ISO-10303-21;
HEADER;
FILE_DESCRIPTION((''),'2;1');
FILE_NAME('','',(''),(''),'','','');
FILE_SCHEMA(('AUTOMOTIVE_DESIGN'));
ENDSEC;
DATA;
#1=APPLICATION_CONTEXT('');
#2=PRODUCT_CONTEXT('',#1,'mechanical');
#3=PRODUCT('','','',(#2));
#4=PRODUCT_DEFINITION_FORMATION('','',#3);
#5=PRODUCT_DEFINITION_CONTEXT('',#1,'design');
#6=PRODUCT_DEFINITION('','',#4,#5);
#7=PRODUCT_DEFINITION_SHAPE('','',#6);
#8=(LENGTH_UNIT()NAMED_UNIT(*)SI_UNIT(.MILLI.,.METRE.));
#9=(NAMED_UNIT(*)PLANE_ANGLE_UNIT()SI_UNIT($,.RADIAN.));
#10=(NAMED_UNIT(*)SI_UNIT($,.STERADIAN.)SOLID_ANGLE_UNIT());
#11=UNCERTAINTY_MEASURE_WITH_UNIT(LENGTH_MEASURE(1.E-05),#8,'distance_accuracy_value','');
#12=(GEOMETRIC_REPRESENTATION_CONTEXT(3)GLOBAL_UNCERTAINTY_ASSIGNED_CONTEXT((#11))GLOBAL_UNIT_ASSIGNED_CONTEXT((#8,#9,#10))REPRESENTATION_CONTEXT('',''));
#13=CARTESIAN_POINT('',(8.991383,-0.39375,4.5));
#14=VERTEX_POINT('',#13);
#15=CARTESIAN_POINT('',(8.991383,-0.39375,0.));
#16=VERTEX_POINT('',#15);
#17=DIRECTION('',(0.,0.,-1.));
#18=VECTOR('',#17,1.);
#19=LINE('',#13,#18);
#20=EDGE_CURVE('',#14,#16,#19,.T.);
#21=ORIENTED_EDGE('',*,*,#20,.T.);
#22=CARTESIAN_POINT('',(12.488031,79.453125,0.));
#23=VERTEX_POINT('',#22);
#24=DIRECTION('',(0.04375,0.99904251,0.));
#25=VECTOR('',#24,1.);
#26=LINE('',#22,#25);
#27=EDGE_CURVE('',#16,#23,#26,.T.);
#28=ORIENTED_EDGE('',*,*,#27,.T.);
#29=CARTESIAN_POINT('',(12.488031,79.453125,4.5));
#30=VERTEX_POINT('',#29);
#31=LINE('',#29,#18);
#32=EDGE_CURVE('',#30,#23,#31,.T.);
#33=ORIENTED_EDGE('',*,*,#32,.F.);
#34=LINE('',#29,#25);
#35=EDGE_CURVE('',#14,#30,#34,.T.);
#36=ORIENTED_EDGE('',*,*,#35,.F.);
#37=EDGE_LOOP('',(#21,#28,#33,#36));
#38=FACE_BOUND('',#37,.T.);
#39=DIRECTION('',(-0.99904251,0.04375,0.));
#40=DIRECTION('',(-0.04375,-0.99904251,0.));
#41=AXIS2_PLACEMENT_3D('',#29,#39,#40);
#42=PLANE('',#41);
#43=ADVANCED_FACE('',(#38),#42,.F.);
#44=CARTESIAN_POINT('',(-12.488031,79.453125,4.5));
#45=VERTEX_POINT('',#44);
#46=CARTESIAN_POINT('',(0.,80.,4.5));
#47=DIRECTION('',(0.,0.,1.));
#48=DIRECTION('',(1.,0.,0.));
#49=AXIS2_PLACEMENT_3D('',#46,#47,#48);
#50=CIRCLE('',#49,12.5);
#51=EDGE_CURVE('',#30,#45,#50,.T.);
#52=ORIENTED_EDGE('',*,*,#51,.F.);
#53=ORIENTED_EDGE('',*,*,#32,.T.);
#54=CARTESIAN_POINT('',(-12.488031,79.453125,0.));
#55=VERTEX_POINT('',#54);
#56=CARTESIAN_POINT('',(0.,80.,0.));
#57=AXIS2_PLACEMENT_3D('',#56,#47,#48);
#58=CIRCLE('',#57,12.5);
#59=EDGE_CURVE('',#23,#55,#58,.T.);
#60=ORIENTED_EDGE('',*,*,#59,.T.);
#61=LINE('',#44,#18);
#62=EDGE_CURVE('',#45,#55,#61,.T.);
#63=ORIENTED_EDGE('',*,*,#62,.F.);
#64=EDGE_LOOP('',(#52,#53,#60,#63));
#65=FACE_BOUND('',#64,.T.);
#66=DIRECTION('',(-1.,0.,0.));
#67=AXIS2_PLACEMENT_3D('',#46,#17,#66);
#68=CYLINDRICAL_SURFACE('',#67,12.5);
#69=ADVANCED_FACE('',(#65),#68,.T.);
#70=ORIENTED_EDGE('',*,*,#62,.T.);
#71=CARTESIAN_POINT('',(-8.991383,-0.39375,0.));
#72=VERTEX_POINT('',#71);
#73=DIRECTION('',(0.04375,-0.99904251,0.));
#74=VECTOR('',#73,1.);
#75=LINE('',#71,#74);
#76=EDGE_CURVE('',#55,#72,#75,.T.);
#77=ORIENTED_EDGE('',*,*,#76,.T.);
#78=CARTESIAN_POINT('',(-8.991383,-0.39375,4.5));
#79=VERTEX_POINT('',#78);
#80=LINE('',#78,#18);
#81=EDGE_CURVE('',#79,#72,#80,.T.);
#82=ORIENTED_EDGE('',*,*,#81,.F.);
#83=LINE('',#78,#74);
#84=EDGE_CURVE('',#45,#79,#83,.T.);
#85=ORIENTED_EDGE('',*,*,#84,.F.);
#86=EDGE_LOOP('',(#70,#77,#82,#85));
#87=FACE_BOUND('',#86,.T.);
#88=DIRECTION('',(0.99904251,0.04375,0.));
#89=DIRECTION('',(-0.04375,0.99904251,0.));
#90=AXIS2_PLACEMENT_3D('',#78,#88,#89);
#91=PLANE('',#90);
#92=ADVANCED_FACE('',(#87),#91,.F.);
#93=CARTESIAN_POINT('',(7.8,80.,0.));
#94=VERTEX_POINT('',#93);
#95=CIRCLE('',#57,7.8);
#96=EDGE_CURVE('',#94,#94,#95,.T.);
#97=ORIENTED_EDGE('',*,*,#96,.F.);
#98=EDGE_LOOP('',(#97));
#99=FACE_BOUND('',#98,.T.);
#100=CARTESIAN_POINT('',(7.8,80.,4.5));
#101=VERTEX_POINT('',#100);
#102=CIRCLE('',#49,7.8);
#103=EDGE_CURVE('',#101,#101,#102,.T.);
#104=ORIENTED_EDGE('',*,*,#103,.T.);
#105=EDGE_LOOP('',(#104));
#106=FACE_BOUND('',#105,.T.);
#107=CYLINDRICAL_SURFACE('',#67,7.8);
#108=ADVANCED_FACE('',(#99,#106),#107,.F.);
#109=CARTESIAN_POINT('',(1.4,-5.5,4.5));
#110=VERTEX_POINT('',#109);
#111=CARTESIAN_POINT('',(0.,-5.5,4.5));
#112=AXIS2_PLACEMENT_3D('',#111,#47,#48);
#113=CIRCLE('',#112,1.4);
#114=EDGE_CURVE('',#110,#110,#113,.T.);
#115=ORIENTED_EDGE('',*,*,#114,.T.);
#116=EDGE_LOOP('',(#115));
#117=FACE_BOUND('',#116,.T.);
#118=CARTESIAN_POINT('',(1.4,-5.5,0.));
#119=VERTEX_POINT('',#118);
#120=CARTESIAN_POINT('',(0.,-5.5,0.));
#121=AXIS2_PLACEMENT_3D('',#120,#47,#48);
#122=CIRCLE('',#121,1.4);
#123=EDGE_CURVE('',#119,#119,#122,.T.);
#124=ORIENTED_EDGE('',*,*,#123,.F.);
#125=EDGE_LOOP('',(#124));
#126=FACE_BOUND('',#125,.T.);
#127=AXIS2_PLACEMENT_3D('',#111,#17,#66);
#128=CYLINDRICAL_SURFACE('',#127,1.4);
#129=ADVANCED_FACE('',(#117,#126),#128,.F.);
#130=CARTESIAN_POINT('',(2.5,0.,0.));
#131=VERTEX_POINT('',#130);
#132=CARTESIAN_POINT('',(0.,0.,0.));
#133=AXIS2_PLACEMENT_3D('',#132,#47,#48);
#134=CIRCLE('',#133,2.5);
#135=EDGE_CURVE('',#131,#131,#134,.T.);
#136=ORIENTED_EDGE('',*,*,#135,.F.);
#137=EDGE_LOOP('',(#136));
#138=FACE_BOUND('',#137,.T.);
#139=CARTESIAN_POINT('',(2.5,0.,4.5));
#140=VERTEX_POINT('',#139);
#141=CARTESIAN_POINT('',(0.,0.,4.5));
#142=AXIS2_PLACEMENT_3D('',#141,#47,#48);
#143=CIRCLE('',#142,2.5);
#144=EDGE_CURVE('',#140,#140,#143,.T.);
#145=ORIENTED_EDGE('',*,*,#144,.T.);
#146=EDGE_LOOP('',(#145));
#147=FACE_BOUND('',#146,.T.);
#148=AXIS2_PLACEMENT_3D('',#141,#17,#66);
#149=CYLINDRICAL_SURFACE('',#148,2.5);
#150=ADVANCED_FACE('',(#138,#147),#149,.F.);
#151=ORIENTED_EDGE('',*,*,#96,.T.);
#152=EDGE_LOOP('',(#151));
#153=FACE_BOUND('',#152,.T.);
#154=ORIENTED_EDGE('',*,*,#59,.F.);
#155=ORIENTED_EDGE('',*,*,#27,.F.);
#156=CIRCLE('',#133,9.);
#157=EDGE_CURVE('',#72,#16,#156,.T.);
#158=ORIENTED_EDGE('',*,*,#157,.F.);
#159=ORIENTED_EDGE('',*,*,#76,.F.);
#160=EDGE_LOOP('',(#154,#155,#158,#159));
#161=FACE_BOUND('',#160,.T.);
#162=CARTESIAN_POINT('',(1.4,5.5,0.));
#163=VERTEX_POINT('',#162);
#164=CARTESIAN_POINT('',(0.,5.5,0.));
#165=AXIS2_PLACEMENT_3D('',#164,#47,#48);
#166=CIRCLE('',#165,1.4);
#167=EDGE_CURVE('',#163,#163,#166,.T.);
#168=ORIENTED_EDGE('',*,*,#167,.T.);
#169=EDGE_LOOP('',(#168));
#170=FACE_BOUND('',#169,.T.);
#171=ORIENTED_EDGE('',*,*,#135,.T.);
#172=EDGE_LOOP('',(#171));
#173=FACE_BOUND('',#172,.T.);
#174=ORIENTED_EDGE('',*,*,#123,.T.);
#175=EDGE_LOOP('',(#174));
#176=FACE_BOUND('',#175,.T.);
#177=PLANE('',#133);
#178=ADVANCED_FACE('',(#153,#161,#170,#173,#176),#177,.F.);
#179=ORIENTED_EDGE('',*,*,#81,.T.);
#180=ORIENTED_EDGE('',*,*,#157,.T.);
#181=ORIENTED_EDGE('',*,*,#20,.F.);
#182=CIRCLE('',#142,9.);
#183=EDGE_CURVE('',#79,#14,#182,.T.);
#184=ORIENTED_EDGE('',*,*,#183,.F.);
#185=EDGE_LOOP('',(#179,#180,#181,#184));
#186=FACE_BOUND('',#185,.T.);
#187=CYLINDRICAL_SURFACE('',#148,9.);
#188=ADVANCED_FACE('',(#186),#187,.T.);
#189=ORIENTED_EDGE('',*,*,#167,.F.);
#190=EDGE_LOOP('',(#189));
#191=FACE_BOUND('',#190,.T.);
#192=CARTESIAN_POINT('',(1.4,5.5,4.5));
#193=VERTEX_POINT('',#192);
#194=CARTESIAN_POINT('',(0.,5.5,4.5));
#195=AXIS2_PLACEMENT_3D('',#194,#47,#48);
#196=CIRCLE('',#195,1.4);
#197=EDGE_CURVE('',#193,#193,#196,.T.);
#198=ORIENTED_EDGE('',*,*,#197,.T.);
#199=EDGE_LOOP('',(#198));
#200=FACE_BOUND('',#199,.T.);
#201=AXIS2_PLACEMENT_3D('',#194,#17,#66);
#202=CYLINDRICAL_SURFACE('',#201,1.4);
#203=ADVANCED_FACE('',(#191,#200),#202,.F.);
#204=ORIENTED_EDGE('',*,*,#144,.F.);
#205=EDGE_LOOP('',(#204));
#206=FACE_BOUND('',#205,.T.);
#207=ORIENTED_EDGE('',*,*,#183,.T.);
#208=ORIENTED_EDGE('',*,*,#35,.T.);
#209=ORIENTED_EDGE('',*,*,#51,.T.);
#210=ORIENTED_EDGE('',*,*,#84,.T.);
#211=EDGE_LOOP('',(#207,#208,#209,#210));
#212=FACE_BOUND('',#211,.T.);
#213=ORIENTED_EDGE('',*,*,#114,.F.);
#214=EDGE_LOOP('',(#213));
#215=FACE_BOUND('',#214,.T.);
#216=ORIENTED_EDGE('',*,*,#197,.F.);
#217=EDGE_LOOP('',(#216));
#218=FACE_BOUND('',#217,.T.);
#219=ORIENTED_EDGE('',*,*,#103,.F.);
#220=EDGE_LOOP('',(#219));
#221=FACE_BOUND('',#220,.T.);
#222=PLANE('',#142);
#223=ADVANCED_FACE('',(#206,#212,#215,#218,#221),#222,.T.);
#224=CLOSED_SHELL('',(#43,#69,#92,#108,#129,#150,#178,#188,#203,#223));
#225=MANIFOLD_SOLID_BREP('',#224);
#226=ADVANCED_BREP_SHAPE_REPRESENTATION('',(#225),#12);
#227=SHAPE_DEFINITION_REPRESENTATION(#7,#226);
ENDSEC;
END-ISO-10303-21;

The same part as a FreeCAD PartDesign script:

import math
import FreeCAD as App
import Part
import Sketcher

doc = App.newDocument("Part")
body = doc.addObject("PartDesign::Body", "Body")

# Sketch on XY plane
sketch1 = body.newObject("Sketcher::SketchObject", "Sketch")
sketch1.AttachmentSupport = (doc.getObject("XY_Plane"), [""])
sketch1.MapMode = "FlatFace"
sketch1.addGeometry([
    Part.LineSegment(App.Vector(-12.5, 79.5, 0), App.Vector(-9, -0.4, 0)),  # 0
    Part.ArcOfCircle(Part.Circle(App.Vector(0, 0, 0), App.Vector(0, 0, 1), 9), math.radians(-177), math.radians(-3)),  # 1
    Part.LineSegment(App.Vector(9, -0.4, 0), App.Vector(12.5, 79.5, 0)),  # 2
    Part.ArcOfCircle(Part.Circle(App.Vector(0, 80, 0), App.Vector(0, 0, 1), 12.5), math.radians(-3), math.radians(183)),  # 3
    Part.Circle(App.Vector(0, -5.5, 0), App.Vector(0, 0, 1), 1.4),  # 4
    Part.Circle(App.Vector(0, 0, 0), App.Vector(0, 0, 1), 2.5),  # 5
    Part.Circle(App.Vector(0, 5.5, 0), App.Vector(0, 0, 1), 1.4),  # 6
    Part.Circle(App.Vector(0, 80, 0), App.Vector(0, 0, 1), 7.8),  # 7
], False)
sketch1.addConstraint([
    Sketcher.Constraint("Tangent", 0, 2, 1, 1),
    Sketcher.Constraint("Tangent", 1, 2, 2, 1),
    Sketcher.Constraint("Tangent", 2, 2, 3, 1),
    Sketcher.Constraint("Tangent", 3, 2, 0, 1),
    Sketcher.Constraint("Coincident", 1, 3, -1, 1),
    Sketcher.Constraint("Coincident", 5, 3, -1, 1),
    Sketcher.Constraint("Coincident", 7, 3, 3, 3),
    Sketcher.Constraint("Equal", 4, 6),
    Sketcher.Constraint("Symmetric", 4, 3, 6, 3, -1, 1),
    Sketcher.Constraint("PointOnObject", 3, 3, -2),
    Sketcher.Constraint("PointOnObject", 4, 3, -2),
    Sketcher.Constraint("Diameter", 5, 5.0),
    Sketcher.Constraint("Radius", 1, 9.0),
    Sketcher.Constraint("Diameter", 4, 2.8),
    Sketcher.Constraint("Diameter", 7, 15.6),
    Sketcher.Constraint("Radius", 3, 12.5),
    Sketcher.Constraint("DistanceY", -1, 1, 3, 3, 80.0),
    Sketcher.Constraint("DistanceY", 4, 3, 6, 3, 11.0),
])
pad1 = body.newObject("PartDesign::Pad", "Pad")
pad1.Profile = sketch1
pad1.Length = 4.5

doc.recompute()
